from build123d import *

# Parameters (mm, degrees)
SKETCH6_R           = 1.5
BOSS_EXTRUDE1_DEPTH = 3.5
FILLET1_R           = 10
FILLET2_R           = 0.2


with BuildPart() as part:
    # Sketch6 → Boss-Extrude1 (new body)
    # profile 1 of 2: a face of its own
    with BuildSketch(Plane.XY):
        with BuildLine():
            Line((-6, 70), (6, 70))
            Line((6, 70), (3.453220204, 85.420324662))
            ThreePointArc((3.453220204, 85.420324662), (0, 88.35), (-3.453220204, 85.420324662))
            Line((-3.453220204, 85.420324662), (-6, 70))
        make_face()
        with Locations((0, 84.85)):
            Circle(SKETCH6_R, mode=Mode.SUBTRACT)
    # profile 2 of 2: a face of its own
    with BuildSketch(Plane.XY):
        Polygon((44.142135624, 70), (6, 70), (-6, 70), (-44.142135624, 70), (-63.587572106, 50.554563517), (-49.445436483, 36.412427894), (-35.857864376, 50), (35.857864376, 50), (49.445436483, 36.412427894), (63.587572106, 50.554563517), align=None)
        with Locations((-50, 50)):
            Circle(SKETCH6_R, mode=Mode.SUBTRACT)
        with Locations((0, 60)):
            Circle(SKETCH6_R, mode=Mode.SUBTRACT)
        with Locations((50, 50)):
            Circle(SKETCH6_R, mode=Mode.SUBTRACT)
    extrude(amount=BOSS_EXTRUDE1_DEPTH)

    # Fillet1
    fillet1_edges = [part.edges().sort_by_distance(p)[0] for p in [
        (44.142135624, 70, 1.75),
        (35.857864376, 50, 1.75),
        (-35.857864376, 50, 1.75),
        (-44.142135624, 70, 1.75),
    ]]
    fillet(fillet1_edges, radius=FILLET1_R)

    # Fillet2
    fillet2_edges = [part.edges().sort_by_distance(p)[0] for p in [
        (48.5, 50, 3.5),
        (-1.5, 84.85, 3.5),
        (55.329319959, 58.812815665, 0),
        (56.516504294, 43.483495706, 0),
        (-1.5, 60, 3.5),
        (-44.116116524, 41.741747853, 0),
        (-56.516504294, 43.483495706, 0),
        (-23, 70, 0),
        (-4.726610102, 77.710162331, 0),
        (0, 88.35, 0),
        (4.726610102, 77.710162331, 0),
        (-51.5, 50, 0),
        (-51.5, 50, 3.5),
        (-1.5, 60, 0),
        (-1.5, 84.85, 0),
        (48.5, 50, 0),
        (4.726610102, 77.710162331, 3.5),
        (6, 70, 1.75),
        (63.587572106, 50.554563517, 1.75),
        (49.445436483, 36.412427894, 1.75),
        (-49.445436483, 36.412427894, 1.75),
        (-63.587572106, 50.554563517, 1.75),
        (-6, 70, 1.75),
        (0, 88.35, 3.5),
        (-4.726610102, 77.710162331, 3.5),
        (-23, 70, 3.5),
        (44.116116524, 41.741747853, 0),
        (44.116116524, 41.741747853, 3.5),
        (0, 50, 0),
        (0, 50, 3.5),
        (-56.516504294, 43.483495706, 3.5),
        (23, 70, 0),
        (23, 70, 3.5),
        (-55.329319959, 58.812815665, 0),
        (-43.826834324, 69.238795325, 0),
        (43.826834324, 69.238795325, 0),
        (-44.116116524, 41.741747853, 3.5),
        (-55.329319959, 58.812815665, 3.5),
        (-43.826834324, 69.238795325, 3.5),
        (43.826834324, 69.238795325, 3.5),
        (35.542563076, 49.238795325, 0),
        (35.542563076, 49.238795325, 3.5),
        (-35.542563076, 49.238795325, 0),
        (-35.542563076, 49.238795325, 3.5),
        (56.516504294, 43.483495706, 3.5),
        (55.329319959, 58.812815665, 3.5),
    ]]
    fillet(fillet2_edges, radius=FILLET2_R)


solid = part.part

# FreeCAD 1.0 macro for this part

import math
import FreeCAD as App
import Part
import Sketcher
Q = App.Units.Quantity


def edges_at(feature, points):
    """Names of the edges that pass closest to the given points."""
    edges = feature.Shape.Edges
    near = lambda p: min(range(len(edges)), key=lambda i: edges[i].distToShape(Part.Vertex(*p))[0])
    return sorted({f"Edge{near(p) + 1}" for p in points})

doc = App.newDocument("Part")
body = doc.addObject("PartDesign::Body", "Body")

# Sketch on XY plane
sketch1 = doc.addObject("Sketcher::SketchObject", "Sketch")
body.addObject(sketch1)
sketch1.AttachmentSupport = (doc.XY_Plane, [""])
sketch1.MapMode = "FlatFace"
sketch1.addGeometry([
    Part.LineSegment(App.Vector(-3.5, 85.4, 0), App.Vector(-6, 70, 0)),  # 0
    Part.LineSegment(App.Vector(-6, 70, 0), App.Vector(-44.1, 70, 0)),  # 1
    Part.LineSegment(App.Vector(-44.1, 70, 0), App.Vector(-63.6, 50.6, 0)),  # 2
    Part.LineSegment(App.Vector(-63.6, 50.6, 0), App.Vector(-49.4, 36.4, 0)),  # 3
    Part.LineSegment(App.Vector(-49.4, 36.4, 0), App.Vector(-35.9, 50, 0)),  # 4
    Part.LineSegment(App.Vector(-35.9, 50, 0), App.Vector(35.9, 50, 0)),  # 5
    Part.LineSegment(App.Vector(35.9, 50, 0), App.Vector(49.4, 36.4, 0)),  # 6
    Part.LineSegment(App.Vector(49.4, 36.4, 0), App.Vector(63.6, 50.6, 0)),  # 7
    Part.LineSegment(App.Vector(63.6, 50.6, 0), App.Vector(44.1, 70, 0)),  # 8
    Part.LineSegment(App.Vector(44.1, 70, 0), App.Vector(6, 70, 0)),  # 9
    Part.LineSegment(App.Vector(6, 70, 0), App.Vector(3.5, 85.4, 0)),  # 10
    Part.ArcOfCircle(Part.Circle(App.Vector(0, 84.8, 0), App.Vector(0, 0, 1), 3.5), math.radians(9), math.radians(171)),  # 11
    Part.Circle(App.Vector(0, 84.8, 0), App.Vector(0, 0, 1), 1.5),  # 12
    Part.Circle(App.Vector(0, 60, 0), App.Vector(0, 0, 1), 1.5),  # 13
    Part.Circle(App.Vector(-50, 50, 0), App.Vector(0, 0, 1), 1.5),  # 14
    Part.Circle(App.Vector(50, 50, 0), App.Vector(0, 0, 1), 1.5),  # 15
], False)
sketch1.addConstraint([
    Sketcher.Constraint("Coincident", 0, 2, 1, 1),
    Sketcher.Constraint("Coincident", 1, 2, 2, 1),
    Sketcher.Constraint("Coincident", 2, 2, 3, 1),
    Sketcher.Constraint("Coincident", 3, 2, 4, 1),
    Sketcher.Constraint("Coincident", 4, 2, 5, 1),
    Sketcher.Constraint("Coincident", 5, 2, 6, 1),
    Sketcher.Constraint("Coincident", 6, 2, 7, 1),
    Sketcher.Constraint("Coincident", 7, 2, 8, 1),
    Sketcher.Constraint("Coincident", 8, 2, 9, 1),
    Sketcher.Constraint("Coincident", 9, 2, 10, 1),
    Sketcher.Constraint("Tangent", 10, 2, 11, 1),
    Sketcher.Constraint("Tangent", 11, 2, 0, 1),
    Sketcher.Constraint("Horizontal", 1),
    Sketcher.Constraint("Horizontal", 5),
    Sketcher.Constraint("Horizontal", 9),
    Sketcher.Constraint("Coincident", 12, 3, 11, 3),
    Sketcher.Constraint("Equal", 12, 13),
    Sketcher.Constraint("Equal", 13, 14),
    Sketcher.Constraint("Equal", 14, 15),
    Sketcher.Constraint("Symmetric", 14, 3, 15, 3, -2),
    Sketcher.Constraint("Symmetric", 3, 2, 6, 2, -2),
    Sketcher.Constraint("Symmetric", 2, 2, 7, 2, -2),
    Sketcher.Constraint("Symmetric", 1, 2, 8, 2, -2),
    Sketcher.Constraint("Symmetric", 10, 2, 11, 2, -2),
    Sketcher.Constraint("PointOnObject", 13, 3, -2),
    Sketcher.Constraint("Perpendicular", 2, 3),
    Sketcher.Constraint("Perpendicular", 3, 4),
    Sketcher.Constraint("Perpendicular", 4, 6),
    Sketcher.Constraint("Perpendicular", 6, 7),
    Sketcher.Constraint("Horizontal", 15, 3, 4, 2),
    Sketcher.Constraint("Diameter", 12, Q("3 mm")),
    Sketcher.Constraint("Radius", 11, Q("3.5 mm")),
    Sketcher.Constraint("Distance", 3, Q("20 mm")),
    Sketcher.Constraint("DistanceY", -1, 1, 13, 3, Q("60 mm")),
    Sketcher.Constraint("DistanceX", 14, 3, -1, 1, Q("50 mm")),
    Sketcher.Constraint("DistanceY", -1, 1, 14, 3, Q("50 mm")),
    Sketcher.Constraint("DistanceX", 0, 2, -1, 1, Q("6 mm")),
    Sketcher.Constraint("DistanceY", -1, 1, 0, 2, Q("70 mm")),
    Sketcher.Constraint("Distance", 2, Q("27.5 mm")),
    Sketcher.Constraint("DistanceY", -1, 1, 11, 3, Q("84.85 mm")),
    Sketcher.Constraint("DistanceX", 5, 1, 5, 2, Q("71.715729 mm")),
])
pad1 = doc.addObject("PartDesign::Pad", "Pad")
body.addObject(pad1)
pad1.Profile = sketch1
pad1.Length = 3.5
doc.recompute()

fillet = doc.addObject("PartDesign::Fillet", "Fillet")
body.addObject(fillet)
fillet.Base = (pad1, edges_at(pad1, [
    (44.142, 70, 1.75),
    (35.858, 50, 1.75),
    (-35.858, 50, 1.75),
    (-44.142, 70, 1.75),
]))
fillet.Radius = 10
doc.recompute()

fillet2 = doc.addObject("PartDesign::Fillet", "Fillet001")
body.addObject(fillet2)
fillet2.Base = (fillet, ["Edge1"])
fillet2.UseAllEdges = True
fillet2.Radius = 0.2

doc.recompute()
